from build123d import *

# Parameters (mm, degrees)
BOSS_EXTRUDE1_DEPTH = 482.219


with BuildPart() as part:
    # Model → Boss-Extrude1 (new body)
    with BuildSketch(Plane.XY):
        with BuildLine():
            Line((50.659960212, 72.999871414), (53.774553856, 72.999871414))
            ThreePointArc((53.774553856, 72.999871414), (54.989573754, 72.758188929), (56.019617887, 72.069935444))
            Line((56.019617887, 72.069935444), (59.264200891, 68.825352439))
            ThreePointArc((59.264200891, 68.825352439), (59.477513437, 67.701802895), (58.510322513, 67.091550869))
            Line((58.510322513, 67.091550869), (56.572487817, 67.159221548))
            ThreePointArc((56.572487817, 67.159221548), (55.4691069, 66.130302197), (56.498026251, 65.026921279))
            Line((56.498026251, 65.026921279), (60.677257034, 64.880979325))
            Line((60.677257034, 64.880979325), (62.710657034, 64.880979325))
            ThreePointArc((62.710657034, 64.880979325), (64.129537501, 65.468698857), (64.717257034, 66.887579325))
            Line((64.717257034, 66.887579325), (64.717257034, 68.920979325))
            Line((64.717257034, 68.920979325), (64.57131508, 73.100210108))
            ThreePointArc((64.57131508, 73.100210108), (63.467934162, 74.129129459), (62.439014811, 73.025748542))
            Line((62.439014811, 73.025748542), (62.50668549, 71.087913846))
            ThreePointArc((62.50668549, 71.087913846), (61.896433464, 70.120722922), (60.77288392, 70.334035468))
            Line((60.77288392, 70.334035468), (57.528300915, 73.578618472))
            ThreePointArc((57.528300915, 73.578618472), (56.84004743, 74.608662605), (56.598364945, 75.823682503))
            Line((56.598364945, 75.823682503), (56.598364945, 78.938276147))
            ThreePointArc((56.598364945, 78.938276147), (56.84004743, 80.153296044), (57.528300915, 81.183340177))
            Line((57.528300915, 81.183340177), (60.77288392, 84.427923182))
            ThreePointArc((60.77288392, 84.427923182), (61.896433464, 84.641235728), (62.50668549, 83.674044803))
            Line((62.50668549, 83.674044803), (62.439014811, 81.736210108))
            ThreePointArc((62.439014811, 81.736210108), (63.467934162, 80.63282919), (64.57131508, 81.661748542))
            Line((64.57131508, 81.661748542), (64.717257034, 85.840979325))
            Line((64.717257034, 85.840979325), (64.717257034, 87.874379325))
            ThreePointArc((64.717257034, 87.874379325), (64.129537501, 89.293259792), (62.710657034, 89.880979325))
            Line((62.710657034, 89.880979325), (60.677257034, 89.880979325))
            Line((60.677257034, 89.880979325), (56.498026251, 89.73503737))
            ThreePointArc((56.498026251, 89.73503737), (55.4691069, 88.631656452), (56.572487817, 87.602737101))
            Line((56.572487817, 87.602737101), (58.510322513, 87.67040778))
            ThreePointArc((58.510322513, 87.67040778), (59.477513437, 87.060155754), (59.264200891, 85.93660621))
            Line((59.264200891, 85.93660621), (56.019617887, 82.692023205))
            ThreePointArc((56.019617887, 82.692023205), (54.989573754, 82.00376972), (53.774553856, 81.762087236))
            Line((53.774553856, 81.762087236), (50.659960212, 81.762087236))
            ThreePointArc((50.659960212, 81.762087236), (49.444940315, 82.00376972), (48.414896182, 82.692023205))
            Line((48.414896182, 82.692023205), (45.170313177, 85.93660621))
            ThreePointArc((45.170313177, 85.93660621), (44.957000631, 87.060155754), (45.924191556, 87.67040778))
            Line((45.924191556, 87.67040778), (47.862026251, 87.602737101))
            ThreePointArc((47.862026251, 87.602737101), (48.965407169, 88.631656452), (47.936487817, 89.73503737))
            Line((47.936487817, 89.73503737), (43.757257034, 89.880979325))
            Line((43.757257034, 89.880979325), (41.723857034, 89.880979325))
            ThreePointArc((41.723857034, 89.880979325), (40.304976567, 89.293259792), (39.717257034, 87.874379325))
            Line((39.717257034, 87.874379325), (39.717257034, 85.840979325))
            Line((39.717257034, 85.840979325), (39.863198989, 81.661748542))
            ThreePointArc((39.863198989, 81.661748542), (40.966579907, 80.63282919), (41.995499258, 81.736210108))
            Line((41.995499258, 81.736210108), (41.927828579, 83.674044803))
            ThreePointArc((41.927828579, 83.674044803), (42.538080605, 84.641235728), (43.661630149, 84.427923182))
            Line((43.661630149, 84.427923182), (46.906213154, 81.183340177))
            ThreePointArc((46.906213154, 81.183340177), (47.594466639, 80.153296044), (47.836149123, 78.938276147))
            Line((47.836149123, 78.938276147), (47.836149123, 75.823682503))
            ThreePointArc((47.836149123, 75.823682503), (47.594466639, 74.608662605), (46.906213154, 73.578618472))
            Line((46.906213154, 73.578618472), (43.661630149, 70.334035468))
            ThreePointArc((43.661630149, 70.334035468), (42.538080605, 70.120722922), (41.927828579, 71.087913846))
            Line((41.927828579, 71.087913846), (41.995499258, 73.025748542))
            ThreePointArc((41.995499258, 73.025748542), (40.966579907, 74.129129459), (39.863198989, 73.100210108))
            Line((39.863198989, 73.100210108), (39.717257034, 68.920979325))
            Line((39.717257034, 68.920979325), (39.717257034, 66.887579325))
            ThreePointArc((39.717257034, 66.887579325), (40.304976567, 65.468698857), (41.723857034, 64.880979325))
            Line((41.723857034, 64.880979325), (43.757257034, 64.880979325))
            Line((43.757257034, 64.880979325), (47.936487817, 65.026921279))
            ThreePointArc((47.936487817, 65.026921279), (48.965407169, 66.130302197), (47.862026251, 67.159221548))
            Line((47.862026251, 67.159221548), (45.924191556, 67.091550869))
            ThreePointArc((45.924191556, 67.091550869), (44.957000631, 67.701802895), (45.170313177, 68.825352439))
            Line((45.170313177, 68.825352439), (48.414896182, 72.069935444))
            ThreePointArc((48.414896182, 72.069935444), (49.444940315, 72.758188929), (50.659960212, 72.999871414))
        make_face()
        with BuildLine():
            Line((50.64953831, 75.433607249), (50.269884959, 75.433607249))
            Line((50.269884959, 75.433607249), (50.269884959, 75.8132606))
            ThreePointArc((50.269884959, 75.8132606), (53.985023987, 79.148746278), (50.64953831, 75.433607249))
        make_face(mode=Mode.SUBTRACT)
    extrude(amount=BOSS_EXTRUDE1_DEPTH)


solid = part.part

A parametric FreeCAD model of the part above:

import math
import FreeCAD as App
import Part
import Sketcher

V = App.Vector
Q = App.Units.Quantity

doc = App.newDocument("Part")
params = doc.addObject("Spreadsheet::Sheet", "Params")
for row, (alias, value) in enumerate([
    ("sketch1_radius", "0.04 in"),
    ("sketch1_radius2", "0.125 in"),
    ("sketch1_radius3", "0.042 in"),
    ("sketch1_radius4", "0.079 in"),
    ("pad1_length", "18.985 in"),
], start=1):
    params.set(f"A{row}", alias)
    params.set(f"B{row}", "=" + value)
    params.setAlias(f"B{row}", alias)

body = doc.addObject("PartDesign::Body", "Body")

# Sketch on XY plane
sketch1 = body.newObject("Sketcher::SketchObject", "Sketch")
sketch1.AttachmentSupport = (doc.getObject("XY_Plane"), [""])
sketch1.MapMode = "FlatFace"
sketch1.addGeometry(Part.LineSegment(V(50.65996, 72.999871, 0), V(53.774554, 72.999871, 0)), False)
sketch1.addGeometry(Part.ArcOfCircle(Part.Circle(V(53.774554, 69.824871, 0), V(0, 0, 1), 3.175), math.radians(45), math.radians(90)), False)
sketch1.addGeometry(Part.LineSegment(V(56.019618, 72.069935, 0), V(59.264201, 68.825352, 0)), False)
sketch1.addGeometry(Part.ArcOfCircle(Part.Circle(V(58.54578, 68.106932, 0), V(0, 0, 1), 1.016), math.radians(-92), math.radians(45)), False)
sketch1.addGeometry(Part.LineSegment(V(58.510323, 67.091551, 0), V(56.572488, 67.159222, 0)), False)
sketch1.addGeometry(Part.ArcOfCircle(Part.Circle(V(56.535257, 66.093071, 0), V(0, 0, 1), 1.0668), math.radians(88), math.radians(268)), False)
sketch1.addGeometry(Part.LineSegment(V(56.498026, 65.026921, 0), V(60.677257, 64.880979, 0)), False)
sketch1.addGeometry(Part.LineSegment(V(60.677257, 64.880979, 0), V(62.710657, 64.880979, 0)), False)
sketch1.addGeometry(Part.ArcOfCircle(Part.Circle(V(62.710657, 66.887579, 0), V(0, 0, 1), 2.0066), math.radians(-90), math.radians(0)), False)
sketch1.addGeometry(Part.LineSegment(V(64.717257, 66.887579, 0), V(64.717257, 68.920979, 0)), False)
sketch1.addGeometry(Part.LineSegment(V(64.717257, 68.920979, 0), V(64.571315, 73.10021, 0)), False)
sketch1.addGeometry(Part.ArcOfCircle(Part.Circle(V(63.505165, 73.062979, 0), V(0, 0, 1), 1.0668), math.radians(2), math.radians(182)), False)
sketch1.addGeometry(Part.LineSegment(V(62.439015, 73.025749, 0), V(62.506685, 71.087914, 0)), False)
sketch1.addGeometry(Part.ArcOfCircle(Part.Circle(V(61.491304, 71.052456, 0), V(0, 0, 1), 1.016), math.radians(-135), math.radians(2)), False)
sketch1.addGeometry(Part.LineSegment(V(60.772884, 70.334035, 0), V(57.528301, 73.578618, 0)), False)
sketch1.addGeometry(Part.ArcOfCircle(Part.Circle(V(59.773365, 75.823683, 0), V(0, 0, 1), 3.175), math.radians(-180), math.radians(-135)), False)
sketch1.addGeometry(Part.LineSegment(V(56.598365, 75.823683, 0), V(56.598365, 78.938276, 0)), False)
sketch1.addGeometry(Part.ArcOfCircle(Part.Circle(V(59.773365, 78.938276, 0), V(0, 0, 1), 3.175), math.radians(135), math.radians(180)), False)
sketch1.addGeometry(Part.LineSegment(V(57.528301, 81.18334, 0), V(60.772884, 84.427923, 0)), False)
sketch1.addGeometry(Part.ArcOfCircle(Part.Circle(V(61.491304, 83.709503, 0), V(0, 0, 1), 1.016), math.radians(-2), math.radians(135)), False)
sketch1.addGeometry(Part.LineSegment(V(62.506685, 83.674045, 0), V(62.439015, 81.73621, 0)), False)
sketch1.addGeometry(Part.ArcOfCircle(Part.Circle(V(63.505165, 81.698979, 0), V(0, 0, 1), 1.0668), math.radians(178), math.radians(358)), False)
sketch1.addGeometry(Part.LineSegment(V(64.571315, 81.661749, 0), V(64.717257, 85.840979, 0)), False)
sketch1.addGeometry(Part.LineSegment(V(64.717257, 85.840979, 0), V(64.717257, 87.874379, 0)), False)
sketch1.addGeometry(Part.ArcOfCircle(Part.Circle(V(62.710657, 87.874379, 0), V(0, 0, 1), 2.0066), math.radians(0), math.radians(90)), False)
sketch1.addGeometry(Part.LineSegment(V(62.710657, 89.880979, 0), V(60.677257, 89.880979, 0)), False)
sketch1.addGeometry(Part.LineSegment(V(60.677257, 89.880979, 0), V(56.498026, 89.735037, 0)), False)
sketch1.addGeometry(Part.ArcOfCircle(Part.Circle(V(56.535257, 88.668887, 0), V(0, 0, 1), 1.0668), math.radians(92), math.radians(272)), False)
sketch1.addGeometry(Part.LineSegment(V(56.572488, 87.602737, 0), V(58.510323, 87.670408, 0)), False)
sketch1.addGeometry(Part.ArcOfCircle(Part.Circle(V(58.54578, 86.655027, 0), V(0, 0, 1), 1.016), math.radians(-45), math.radians(92)), False)
sketch1.addGeometry(Part.LineSegment(V(59.264201, 85.936606, 0), V(56.019618, 82.692023, 0)), False)
sketch1.addGeometry(Part.ArcOfCircle(Part.Circle(V(53.774554, 84.937087, 0), V(0, 0, 1), 3.175), math.radians(-90), math.radians(-45)), False)
sketch1.addGeometry(Part.LineSegment(V(53.774554, 81.762087, 0), V(50.65996, 81.762087, 0)), False)
sketch1.addGeometry(Part.ArcOfCircle(Part.Circle(V(50.65996, 84.937087, 0), V(0, 0, 1), 3.175), math.radians(-135), math.radians(-90)), False)
sketch1.addGeometry(Part.LineSegment(V(48.414896, 82.692023, 0), V(45.170313, 85.936606, 0)), False)
sketch1.addGeometry(Part.ArcOfCircle(Part.Circle(V(45.888734, 86.655027, 0), V(0, 0, 1), 1.016), math.radians(88), math.radians(225)), False)
sketch1.addGeometry(Part.LineSegment(V(45.924192, 87.670408, 0), V(47.862026, 87.602737, 0)), False)
sketch1.addGeometry(Part.ArcOfCircle(Part.Circle(V(47.899257, 88.668887, 0), V(0, 0, 1), 1.0668), math.radians(-92), math.radians(88)), False)
sketch1.addGeometry(Part.LineSegment(V(47.936488, 89.735037, 0), V(43.757257, 89.880979, 0)), False)
sketch1.addGeometry(Part.LineSegment(V(43.757257, 89.880979, 0), V(41.723857, 89.880979, 0)), False)
sketch1.addGeometry(Part.ArcOfCircle(Part.Circle(V(41.723857, 87.874379, 0), V(0, 0, 1), 2.0066), math.radians(90), math.radians(180)), False)
sketch1.addGeometry(Part.LineSegment(V(39.717257, 87.874379, 0), V(39.717257, 85.840979, 0)), False)
sketch1.addGeometry(Part.LineSegment(V(39.717257, 85.840979, 0), V(39.863199, 81.661749, 0)), False)
sketch1.addGeometry(Part.ArcOfCircle(Part.Circle(V(40.929349, 81.698979, 0), V(0, 0, 1), 1.0668), math.radians(-178), math.radians(2)), False)
sketch1.addGeometry(Part.LineSegment(V(41.995499, 81.73621, 0), V(41.927829, 83.674045, 0)), False)
sketch1.addGeometry(Part.ArcOfCircle(Part.Circle(V(42.94321, 83.709503, 0), V(0, 0, 1), 1.016), math.radians(45), math.radians(182)), False)
sketch1.addGeometry(Part.LineSegment(V(43.66163, 84.427923, 0), V(46.906213, 81.18334, 0)), False)
sketch1.addGeometry(Part.ArcOfCircle(Part.Circle(V(44.661149, 78.938276, 0), V(0, 0, 1), 3.175), math.radians(0), math.radians(45)), False)
sketch1.addGeometry(Part.LineSegment(V(47.836149, 78.938276, 0), V(47.836149, 75.823683, 0)), False)
sketch1.addGeometry(Part.ArcOfCircle(Part.Circle(V(44.661149, 75.823683, 0), V(0, 0, 1), 3.175), math.radians(-45), math.radians(0)), False)
sketch1.addGeometry(Part.LineSegment(V(46.906213, 73.578618, 0), V(43.66163, 70.334035, 0)), False)
sketch1.addGeometry(Part.ArcOfCircle(Part.Circle(V(42.94321, 71.052456, 0), V(0, 0, 1), 1.016), math.radians(178), math.radians(315)), False)
sketch1.addGeometry(Part.LineSegment(V(41.927829, 71.087914, 0), V(41.995499, 73.025749, 0)), False)
sketch1.addGeometry(Part.ArcOfCircle(Part.Circle(V(40.929349, 73.062979, 0), V(0, 0, 1), 1.0668), math.radians(-2), math.radians(178)), False)
sketch1.addGeometry(Part.LineSegment(V(39.863199, 73.10021, 0), V(39.717257, 68.920979, 0)), False)
sketch1.addGeometry(Part.LineSegment(V(39.717257, 68.920979, 0), V(39.717257, 66.887579, 0)), False)
sketch1.addGeometry(Part.ArcOfCircle(Part.Circle(V(41.723857, 66.887579, 0), V(0, 0, 1), 2.0066), math.radians(180), math.radians(270)), False)
sketch1.addGeometry(Part.LineSegment(V(41.723857, 64.880979, 0), V(43.757257, 64.880979, 0)), False)
sketch1.addGeometry(Part.LineSegment(V(43.757257, 64.880979, 0), V(47.936488, 65.026921, 0)), False)
sketch1.addGeometry(Part.ArcOfCircle(Part.Circle(V(47.899257, 66.093071, 0), V(0, 0, 1), 1.0668), math.radians(-88), math.radians(92)), False)
sketch1.addGeometry(Part.LineSegment(V(47.862026, 67.159222, 0), V(45.924192, 67.091551, 0)), False)
sketch1.addGeometry(Part.ArcOfCircle(Part.Circle(V(45.888734, 68.106932, 0), V(0, 0, 1), 1.016), math.radians(135), math.radians(272)), False)
sketch1.addGeometry(Part.LineSegment(V(45.170313, 68.825352, 0), V(48.414896, 72.069935, 0)), False)
sketch1.addGeometry(Part.ArcOfCircle(Part.Circle(V(50.65996, 69.824871, 0), V(0, 0, 1), 3.175), math.radians(90), math.radians(135)), False)
sketch1.addGeometry(Part.ArcOfCircle(Part.Circle(V(52.217257, 77.380979, 0), V(0, 0, 1), 2.5), math.radians(-128.835568), math.radians(218.835568)), False)
sketch1.addGeometry(Part.LineSegment(V(50.649538, 75.433607, 0), V(50.269885, 75.433607, 0)), False)
sketch1.addGeometry(Part.LineSegment(V(50.269885, 75.433607, 0), V(50.269885, 75.813261, 0)), False)
sketch1.addConstraint(Sketcher.Constraint("Tangent", 0, 2, 1, 2))
sketch1.addConstraint(Sketcher.Constraint("Tangent", 1, 1, 2, 1))
sketch1.addConstraint(Sketcher.Constraint("Tangent", 2, 2, 3, 2))
sketch1.addConstraint(Sketcher.Constraint("Tangent", 3, 1, 4, 1))
sketch1.addConstraint(Sketcher.Constraint("Tangent", 4, 2, 5, 1))
sketch1.addConstraint(Sketcher.Constraint("Tangent", 5, 2, 6, 1))
sketch1.addConstraint(Sketcher.Constraint("Coincident", 6, 2, 7, 1))
sketch1.addConstraint(Sketcher.Constraint("Tangent", 7, 2, 8, 1))
sketch1.addConstraint(Sketcher.Constraint("Tangent", 8, 2, 9, 1))
sketch1.addConstraint(Sketcher.Constraint("Coincident", 9, 2, 10, 1))
sketch1.addConstraint(Sketcher.Constraint("Tangent", 10, 2, 11, 1))
sketch1.addConstraint(Sketcher.Constraint("Tangent", 11, 2, 12, 1))
sketch1.addConstraint(Sketcher.Constraint("Tangent", 12, 2, 13, 2))
sketch1.addConstraint(Sketcher.Constraint("Tangent", 13, 1, 14, 1))
sketch1.addConstraint(Sketcher.Constraint("Tangent", 14, 2, 15, 2))
sketch1.addConstraint(Sketcher.Constraint("Tangent", 15, 1, 16, 1))
sketch1.addConstraint(Sketcher.Constraint("Tangent", 16, 2, 17, 2))
sketch1.addConstraint(Sketcher.Constraint("Tangent", 17, 1, 18, 1))
sketch1.addConstraint(Sketcher.Constraint("Tangent", 18, 2, 19, 2))
sketch1.addConstraint(Sketcher.Constraint("Tangent", 19, 1, 20, 1))
sketch1.addConstraint(Sketcher.Constraint("Tangent", 20, 2, 21, 1))
sketch1.addConstraint(Sketcher.Constraint("Tangent", 21, 2, 22, 1))
sketch1.addConstraint(Sketcher.Constraint("Coincident", 22, 2, 23, 1))
sketch1.addConstraint(Sketcher.Constraint("Tangent", 23, 2, 24, 1))
sketch1.addConstraint(Sketcher.Constraint("Tangent", 24, 2, 25, 1))
sketch1.addConstraint(Sketcher.Constraint("Coincident", 25, 2, 26, 1))
sketch1.addConstraint(Sketcher.Constraint("Tangent", 26, 2, 27, 1))
sketch1.addConstraint(Sketcher.Constraint("Tangent", 27, 2, 28, 1))
sketch1.addConstraint(Sketcher.Constraint("Tangent", 28, 2, 29, 2))
sketch1.addConstraint(Sketcher.Constraint("Tangent", 29, 1, 30, 1))
sketch1.addConstraint(Sketcher.Constraint("Tangent", 30, 2, 31, 2))
sketch1.addConstraint(Sketcher.Constraint("Tangent", 31, 1, 32, 1))
sketch1.addConstraint(Sketcher.Constraint("Tangent", 32, 2, 33, 2))
sketch1.addConstraint(Sketcher.Constraint("Tangent", 33, 1, 34, 1))
sketch1.addConstraint(Sketcher.Constraint("Tangent", 34, 2, 35, 2))
sketch1.addConstraint(Sketcher.Constraint("Tangent", 35, 1, 36, 1))
sketch1.addConstraint(Sketcher.Constraint("Tangent", 36, 2, 37, 1))
sketch1.addConstraint(Sketcher.Constraint("Tangent", 37, 2, 38, 1))
sketch1.addConstraint(Sketcher.Constraint("Coincident", 38, 2, 39, 1))
sketch1.addConstraint(Sketcher.Constraint("Tangent", 39, 2, 40, 1))
sketch1.addConstraint(Sketcher.Constraint("Tangent", 40, 2, 41, 1))
sketch1.addConstraint(Sketcher.Constraint("Coincident", 41, 2, 42, 1))
sketch1.addConstraint(Sketcher.Constraint("Tangent", 42, 2, 43, 1))
sketch1.addConstraint(Sketcher.Constraint("Tangent", 43, 2, 44, 1))
sketch1.addConstraint(Sketcher.Constraint("Tangent", 44, 2, 45, 2))
sketch1.addConstraint(Sketcher.Constraint("Tangent", 45, 1, 46, 1))
sketch1.addConstraint(Sketcher.Constraint("Tangent", 46, 2, 47, 2))
sketch1.addConstraint(Sketcher.Constraint("Tangent", 47, 1, 48, 1))
sketch1.addConstraint(Sketcher.Constraint("Tangent", 48, 2, 49, 2))
sketch1.addConstraint(Sketcher.Constraint("Tangent", 49, 1, 50, 1))
sketch1.addConstraint(Sketcher.Constraint("Tangent", 50, 2, 51, 2))
sketch1.addConstraint(Sketcher.Constraint("Tangent", 51, 1, 52, 1))
sketch1.addConstraint(Sketcher.Constraint("Tangent", 52, 2, 53, 1))
sketch1.addConstraint(Sketcher.Constraint("Tangent", 53, 2, 54, 1))
sketch1.addConstraint(Sketcher.Constraint("Coincident", 54, 2, 55, 1))
sketch1.addConstraint(Sketcher.Constraint("Tangent", 55, 2, 56, 1))
sketch1.addConstraint(Sketcher.Constraint("Tangent", 56, 2, 57, 1))
sketch1.addConstraint(Sketcher.Constraint("Coincident", 57, 2, 58, 1))
sketch1.addConstraint(Sketcher.Constraint("Tangent", 58, 2, 59, 1))
sketch1.addConstraint(Sketcher.Constraint("Tangent", 59, 2, 60, 1))
sketch1.addConstraint(Sketcher.Constraint("Tangent", 60, 2, 61, 2))
sketch1.addConstraint(Sketcher.Constraint("Tangent", 61, 1, 62, 1))
sketch1.addConstraint(Sketcher.Constraint("Tangent", 62, 2, 63, 2))
sketch1.addConstraint(Sketcher.Constraint("Tangent", 63, 1, 0, 1))
sketch1.addConstraint(Sketcher.Constraint("Coincident", 64, 1, 65, 1))
sketch1.addConstraint(Sketcher.Constraint("Coincident", 65, 2, 66, 1))
sketch1.addConstraint(Sketcher.Constraint("Coincident", 66, 2, 64, 2))
sketch1.addConstraint(Sketcher.Constraint("Horizontal", 0))
sketch1.addConstraint(Sketcher.Constraint("Horizontal", 7))
sketch1.addConstraint(Sketcher.Constraint("Vertical", 9))
sketch1.addConstraint(Sketcher.Constraint("Vertical", 16))
sketch1.addConstraint(Sketcher.Constraint("Vertical", 23))
sketch1.addConstraint(Sketcher.Constraint("Horizontal", 25))
sketch1.addConstraint(Sketcher.Constraint("Horizontal", 32))
sketch1.addConstraint(Sketcher.Constraint("Horizontal", 39))
sketch1.addConstraint(Sketcher.Constraint("Vertical", 41))
sketch1.addConstraint(Sketcher.Constraint("Vertical", 48))
sketch1.addConstraint(Sketcher.Constraint("Vertical", 55))
sketch1.addConstraint(Sketcher.Constraint("Horizontal", 57))
sketch1.addConstraint(Sketcher.Constraint("Horizontal", 65))
sketch1.addConstraint(Sketcher.Constraint("Vertical", 66))
sketch1.addConstraint(Sketcher.Constraint("Equal", 5, 11))
sketch1.addConstraint(Sketcher.Constraint("Equal", 3, 13))
sketch1.addConstraint(Sketcher.Constraint("Equal", 1, 15))
sketch1.addConstraint(Sketcher.Constraint("Equal", 15, 17))
sketch1.addConstraint(Sketcher.Constraint("Equal", 13, 19))
sketch1.addConstraint(Sketcher.Constraint("Equal", 11, 21))
sketch1.addConstraint(Sketcher.Constraint("Equal", 8, 24))
sketch1.addConstraint(Sketcher.Constraint("Equal", 21, 27))
sketch1.addConstraint(Sketcher.Constraint("Equal", 19, 29))
sketch1.addConstraint(Sketcher.Constraint("Equal", 17, 31))
sketch1.addConstraint(Sketcher.Constraint("Equal", 31, 33))
sketch1.addConstraint(Sketcher.Constraint("Equal", 29, 35))
sketch1.addConstraint(Sketcher.Constraint("Equal", 27, 37))
sketch1.addConstraint(Sketcher.Constraint("Equal", 24, 40))
sketch1.addConstraint(Sketcher.Constraint("Equal", 37, 43))
sketch1.addConstraint(Sketcher.Constraint("Equal", 35, 45))
sketch1.addConstraint(Sketcher.Constraint("Equal", 33, 47))
sketch1.addConstraint(Sketcher.Constraint("Equal", 47, 49))
sketch1.addConstraint(Sketcher.Constraint("Equal", 45, 51))
sketch1.addConstraint(Sketcher.Constraint("Equal", 43, 53))
sketch1.addConstraint(Sketcher.Constraint("Equal", 40, 56))
sketch1.addConstraint(Sketcher.Constraint("Equal", 53, 59))
sketch1.addConstraint(Sketcher.Constraint("Equal", 51, 61))
sketch1.addConstraint(Sketcher.Constraint("Equal", 49, 63))
sketch1.addConstraint(Sketcher.Constraint("Parallel", 4, 6))
sketch1.addConstraint(Sketcher.Constraint("Parallel", 10, 12))
sketch1.addConstraint(Sketcher.Constraint("Parallel", 2, 14))
sketch1.addConstraint(Sketcher.Constraint("Perpendicular", 14, 18))
sketch1.addConstraint(Sketcher.Constraint("Perpendicular", 6, 20))
sketch1.addConstraint(Sketcher.Constraint("Parallel", 20, 22))
sketch1.addConstraint(Sketcher.Constraint("Perpendicular", 12, 26))
sketch1.addConstraint(Sketcher.Constraint("Parallel", 26, 28))
sketch1.addConstraint(Sketcher.Constraint("Parallel", 18, 30))
sketch1.addConstraint(Sketcher.Constraint("Perpendicular", 30, 34))
sketch1.addConstraint(Sketcher.Constraint("Perpendicular", 22, 36))
sketch1.addConstraint(Sketcher.Constraint("Parallel", 36, 38))
sketch1.addConstraint(Sketcher.Constraint("Perpendicular", 28, 42))
sketch1.addConstraint(Sketcher.Constraint("Parallel", 42, 44))
sketch1.addConstraint(Sketcher.Constraint("Parallel", 34, 46))
sketch1.addConstraint(Sketcher.Constraint("Perpendicular", 46, 50))
sketch1.addConstraint(Sketcher.Constraint("Perpendicular", 38, 52))
sketch1.addConstraint(Sketcher.Constraint("Parallel", 52, 54))
sketch1.addConstraint(Sketcher.Constraint("Perpendicular", 44, 58))
sketch1.addConstraint(Sketcher.Constraint("Parallel", 58, 60))
sketch1.addConstraint(Sketcher.Constraint("Parallel", 50, 62))
sketch1.addConstraint(Sketcher.Constraint("Horizontal", 29, 3, 35, 3))
sketch1.addConstraint(Sketcher.Constraint("Horizontal", 27, 3, 37, 3))
sketch1.addConstraint(Sketcher.Constraint("Horizontal", 24, 3, 40, 3))
sketch1.addConstraint(Sketcher.Constraint("Horizontal", 21, 3, 43, 3))
sketch1.addConstraint(Sketcher.Constraint("Horizontal", 19, 3, 45, 3))
sketch1.addConstraint(Sketcher.Constraint("Horizontal", 17, 3, 47, 3))
sketch1.addConstraint(Sketcher.Constraint("Horizontal", 15, 3, 49, 3))
sketch1.addConstraint(Sketcher.Constraint("Horizontal", 13, 3, 51, 3))
sketch1.addConstraint(Sketcher.Constraint("Horizontal", 11, 3, 53, 3))
sketch1.addConstraint(Sketcher.Constraint("Horizontal", 8, 3, 56, 3))
sketch1.addConstraint(Sketcher.Constraint("Horizontal", 5, 3, 59, 3))
sketch1.addConstraint(Sketcher.Constraint("Horizontal", 3, 3, 61, 3))
sketch1.addConstraint(Sketcher.Constraint("Horizontal", 30, 2, 33, 1))
sketch1.addConstraint(Sketcher.Constraint("Horizontal", 22, 2, 41, 2))
sketch1.addConstraint(Sketcher.Constraint("Horizontal", 21, 2, 42, 2))
sketch1.addConstraint(Sketcher.Constraint("Horizontal", 9, 2, 54, 2))
sketch1.addConstraint(Sketcher.Constraint("Vertical", 13, 3, 19, 3))
sketch1.addConstraint(Sketcher.Constraint("Vertical", 11, 3, 21, 3))
sketch1.addConstraint(Sketcher.Constraint("Vertical", 8, 3, 24, 3))
sketch1.addConstraint(Sketcher.Constraint("Vertical", 5, 3, 27, 3))
sketch1.addConstraint(Sketcher.Constraint("Vertical", 3, 3, 29, 3))
sketch1.addConstraint(Sketcher.Constraint("Vertical", 1, 3, 31, 3))
sketch1.addConstraint(Sketcher.Constraint("Vertical", 37, 3, 59, 3))
sketch1.addConstraint(Sketcher.Constraint("Vertical", 6, 2, 25, 2))
sketch1.addConstraint(Sketcher.Constraint("Equal", 25, 39))
sketch1.addConstraint(Sketcher.Constraint("Equal", 57, 9))
sketch1.addConstraint(Sketcher.Constraint("Equal", 32, 16))
sketch1.addConstraint(Sketcher.Constraint("Equal", 9, 23))
sketch1.addConstraint(Sketcher.Constraint("Equal", 65, 66))
sketch1.addConstraint(Sketcher.Constraint("Equal", 6, 10))
sketch1.addConstraint(Sketcher.Constraint("Equal", 4, 12))
sketch1.addConstraint(Sketcher.Constraint("Equal", 2, 14))
sketch1.addConstraint(Sketcher.Constraint("Radius", 3, Q("0.04 in")))
sketch1.addConstraint(Sketcher.Constraint("Angle", 4, Q("178 deg")))
sketch1.addConstraint(Sketcher.Constraint("Radius", 1, Q("0.125 in")))
sketch1.addConstraint(Sketcher.Constraint("Radius", 5, Q("0.042 in")))
sketch1.addConstraint(Sketcher.Constraint("Radius", 8, Q("0.079 in")))
sketch1.addConstraint(Sketcher.Constraint("Radius", 64, Q("2.5 mm")))
sketch1.addConstraint(Sketcher.Constraint("DistanceX", 7, 1, 7, 2, Q("2.0334 mm")))
sketch1.addConstraint(Sketcher.Constraint("DistanceX", -1, 1, 2, 2, Q("59.264201 mm")))
sketch1.addConstraint(Sketcher.Constraint("DistanceX", -1, 1, 14, 2, Q("57.528301 mm")))
sketch1.addConstraint(Sketcher.Constraint("DistanceX", -1, 1, 42, 2, Q("39.863199 mm")))
sketch1.addConstraint(Sketcher.Constraint("Distance", 6, Q("4.181778 mm")))
sketch1.addConstraint(Sketcher.Constraint("DistanceX", 0, 1, 0, 2, Q("3.114594 mm")))
sketch1.addConstraint(Sketcher.Constraint("DistanceX", 65, 2, 65, 1, Q("0.379653 mm")))
sketch1.addConstraint(Sketcher.Constraint("DistanceY", -1, 1, 1, 3, Q("69.824871 mm")))
sketch1.addConstraint(Sketcher.Constraint("DistanceY", -1, 1, 64, 3, Q("77.380979 mm")))
sketch1.addConstraint(Sketcher.Constraint("DistanceX", -1, 1, 64, 1, Q("50.649538 mm")))
sketch1.setExpression("Constraints[158]", "Params.sketch1_radius")
sketch1.setExpression("Constraints[160]", "Params.sketch1_radius2")
sketch1.setExpression("Constraints[161]", "Params.sketch1_radius3")
sketch1.setExpression("Constraints[162]", "Params.sketch1_radius4")
pad1 = body.newObject("PartDesign::Pad", "Pad")
pad1.Profile = sketch1
pad1.setExpression("Length", "Params.pad1_length")

doc.recompute()
